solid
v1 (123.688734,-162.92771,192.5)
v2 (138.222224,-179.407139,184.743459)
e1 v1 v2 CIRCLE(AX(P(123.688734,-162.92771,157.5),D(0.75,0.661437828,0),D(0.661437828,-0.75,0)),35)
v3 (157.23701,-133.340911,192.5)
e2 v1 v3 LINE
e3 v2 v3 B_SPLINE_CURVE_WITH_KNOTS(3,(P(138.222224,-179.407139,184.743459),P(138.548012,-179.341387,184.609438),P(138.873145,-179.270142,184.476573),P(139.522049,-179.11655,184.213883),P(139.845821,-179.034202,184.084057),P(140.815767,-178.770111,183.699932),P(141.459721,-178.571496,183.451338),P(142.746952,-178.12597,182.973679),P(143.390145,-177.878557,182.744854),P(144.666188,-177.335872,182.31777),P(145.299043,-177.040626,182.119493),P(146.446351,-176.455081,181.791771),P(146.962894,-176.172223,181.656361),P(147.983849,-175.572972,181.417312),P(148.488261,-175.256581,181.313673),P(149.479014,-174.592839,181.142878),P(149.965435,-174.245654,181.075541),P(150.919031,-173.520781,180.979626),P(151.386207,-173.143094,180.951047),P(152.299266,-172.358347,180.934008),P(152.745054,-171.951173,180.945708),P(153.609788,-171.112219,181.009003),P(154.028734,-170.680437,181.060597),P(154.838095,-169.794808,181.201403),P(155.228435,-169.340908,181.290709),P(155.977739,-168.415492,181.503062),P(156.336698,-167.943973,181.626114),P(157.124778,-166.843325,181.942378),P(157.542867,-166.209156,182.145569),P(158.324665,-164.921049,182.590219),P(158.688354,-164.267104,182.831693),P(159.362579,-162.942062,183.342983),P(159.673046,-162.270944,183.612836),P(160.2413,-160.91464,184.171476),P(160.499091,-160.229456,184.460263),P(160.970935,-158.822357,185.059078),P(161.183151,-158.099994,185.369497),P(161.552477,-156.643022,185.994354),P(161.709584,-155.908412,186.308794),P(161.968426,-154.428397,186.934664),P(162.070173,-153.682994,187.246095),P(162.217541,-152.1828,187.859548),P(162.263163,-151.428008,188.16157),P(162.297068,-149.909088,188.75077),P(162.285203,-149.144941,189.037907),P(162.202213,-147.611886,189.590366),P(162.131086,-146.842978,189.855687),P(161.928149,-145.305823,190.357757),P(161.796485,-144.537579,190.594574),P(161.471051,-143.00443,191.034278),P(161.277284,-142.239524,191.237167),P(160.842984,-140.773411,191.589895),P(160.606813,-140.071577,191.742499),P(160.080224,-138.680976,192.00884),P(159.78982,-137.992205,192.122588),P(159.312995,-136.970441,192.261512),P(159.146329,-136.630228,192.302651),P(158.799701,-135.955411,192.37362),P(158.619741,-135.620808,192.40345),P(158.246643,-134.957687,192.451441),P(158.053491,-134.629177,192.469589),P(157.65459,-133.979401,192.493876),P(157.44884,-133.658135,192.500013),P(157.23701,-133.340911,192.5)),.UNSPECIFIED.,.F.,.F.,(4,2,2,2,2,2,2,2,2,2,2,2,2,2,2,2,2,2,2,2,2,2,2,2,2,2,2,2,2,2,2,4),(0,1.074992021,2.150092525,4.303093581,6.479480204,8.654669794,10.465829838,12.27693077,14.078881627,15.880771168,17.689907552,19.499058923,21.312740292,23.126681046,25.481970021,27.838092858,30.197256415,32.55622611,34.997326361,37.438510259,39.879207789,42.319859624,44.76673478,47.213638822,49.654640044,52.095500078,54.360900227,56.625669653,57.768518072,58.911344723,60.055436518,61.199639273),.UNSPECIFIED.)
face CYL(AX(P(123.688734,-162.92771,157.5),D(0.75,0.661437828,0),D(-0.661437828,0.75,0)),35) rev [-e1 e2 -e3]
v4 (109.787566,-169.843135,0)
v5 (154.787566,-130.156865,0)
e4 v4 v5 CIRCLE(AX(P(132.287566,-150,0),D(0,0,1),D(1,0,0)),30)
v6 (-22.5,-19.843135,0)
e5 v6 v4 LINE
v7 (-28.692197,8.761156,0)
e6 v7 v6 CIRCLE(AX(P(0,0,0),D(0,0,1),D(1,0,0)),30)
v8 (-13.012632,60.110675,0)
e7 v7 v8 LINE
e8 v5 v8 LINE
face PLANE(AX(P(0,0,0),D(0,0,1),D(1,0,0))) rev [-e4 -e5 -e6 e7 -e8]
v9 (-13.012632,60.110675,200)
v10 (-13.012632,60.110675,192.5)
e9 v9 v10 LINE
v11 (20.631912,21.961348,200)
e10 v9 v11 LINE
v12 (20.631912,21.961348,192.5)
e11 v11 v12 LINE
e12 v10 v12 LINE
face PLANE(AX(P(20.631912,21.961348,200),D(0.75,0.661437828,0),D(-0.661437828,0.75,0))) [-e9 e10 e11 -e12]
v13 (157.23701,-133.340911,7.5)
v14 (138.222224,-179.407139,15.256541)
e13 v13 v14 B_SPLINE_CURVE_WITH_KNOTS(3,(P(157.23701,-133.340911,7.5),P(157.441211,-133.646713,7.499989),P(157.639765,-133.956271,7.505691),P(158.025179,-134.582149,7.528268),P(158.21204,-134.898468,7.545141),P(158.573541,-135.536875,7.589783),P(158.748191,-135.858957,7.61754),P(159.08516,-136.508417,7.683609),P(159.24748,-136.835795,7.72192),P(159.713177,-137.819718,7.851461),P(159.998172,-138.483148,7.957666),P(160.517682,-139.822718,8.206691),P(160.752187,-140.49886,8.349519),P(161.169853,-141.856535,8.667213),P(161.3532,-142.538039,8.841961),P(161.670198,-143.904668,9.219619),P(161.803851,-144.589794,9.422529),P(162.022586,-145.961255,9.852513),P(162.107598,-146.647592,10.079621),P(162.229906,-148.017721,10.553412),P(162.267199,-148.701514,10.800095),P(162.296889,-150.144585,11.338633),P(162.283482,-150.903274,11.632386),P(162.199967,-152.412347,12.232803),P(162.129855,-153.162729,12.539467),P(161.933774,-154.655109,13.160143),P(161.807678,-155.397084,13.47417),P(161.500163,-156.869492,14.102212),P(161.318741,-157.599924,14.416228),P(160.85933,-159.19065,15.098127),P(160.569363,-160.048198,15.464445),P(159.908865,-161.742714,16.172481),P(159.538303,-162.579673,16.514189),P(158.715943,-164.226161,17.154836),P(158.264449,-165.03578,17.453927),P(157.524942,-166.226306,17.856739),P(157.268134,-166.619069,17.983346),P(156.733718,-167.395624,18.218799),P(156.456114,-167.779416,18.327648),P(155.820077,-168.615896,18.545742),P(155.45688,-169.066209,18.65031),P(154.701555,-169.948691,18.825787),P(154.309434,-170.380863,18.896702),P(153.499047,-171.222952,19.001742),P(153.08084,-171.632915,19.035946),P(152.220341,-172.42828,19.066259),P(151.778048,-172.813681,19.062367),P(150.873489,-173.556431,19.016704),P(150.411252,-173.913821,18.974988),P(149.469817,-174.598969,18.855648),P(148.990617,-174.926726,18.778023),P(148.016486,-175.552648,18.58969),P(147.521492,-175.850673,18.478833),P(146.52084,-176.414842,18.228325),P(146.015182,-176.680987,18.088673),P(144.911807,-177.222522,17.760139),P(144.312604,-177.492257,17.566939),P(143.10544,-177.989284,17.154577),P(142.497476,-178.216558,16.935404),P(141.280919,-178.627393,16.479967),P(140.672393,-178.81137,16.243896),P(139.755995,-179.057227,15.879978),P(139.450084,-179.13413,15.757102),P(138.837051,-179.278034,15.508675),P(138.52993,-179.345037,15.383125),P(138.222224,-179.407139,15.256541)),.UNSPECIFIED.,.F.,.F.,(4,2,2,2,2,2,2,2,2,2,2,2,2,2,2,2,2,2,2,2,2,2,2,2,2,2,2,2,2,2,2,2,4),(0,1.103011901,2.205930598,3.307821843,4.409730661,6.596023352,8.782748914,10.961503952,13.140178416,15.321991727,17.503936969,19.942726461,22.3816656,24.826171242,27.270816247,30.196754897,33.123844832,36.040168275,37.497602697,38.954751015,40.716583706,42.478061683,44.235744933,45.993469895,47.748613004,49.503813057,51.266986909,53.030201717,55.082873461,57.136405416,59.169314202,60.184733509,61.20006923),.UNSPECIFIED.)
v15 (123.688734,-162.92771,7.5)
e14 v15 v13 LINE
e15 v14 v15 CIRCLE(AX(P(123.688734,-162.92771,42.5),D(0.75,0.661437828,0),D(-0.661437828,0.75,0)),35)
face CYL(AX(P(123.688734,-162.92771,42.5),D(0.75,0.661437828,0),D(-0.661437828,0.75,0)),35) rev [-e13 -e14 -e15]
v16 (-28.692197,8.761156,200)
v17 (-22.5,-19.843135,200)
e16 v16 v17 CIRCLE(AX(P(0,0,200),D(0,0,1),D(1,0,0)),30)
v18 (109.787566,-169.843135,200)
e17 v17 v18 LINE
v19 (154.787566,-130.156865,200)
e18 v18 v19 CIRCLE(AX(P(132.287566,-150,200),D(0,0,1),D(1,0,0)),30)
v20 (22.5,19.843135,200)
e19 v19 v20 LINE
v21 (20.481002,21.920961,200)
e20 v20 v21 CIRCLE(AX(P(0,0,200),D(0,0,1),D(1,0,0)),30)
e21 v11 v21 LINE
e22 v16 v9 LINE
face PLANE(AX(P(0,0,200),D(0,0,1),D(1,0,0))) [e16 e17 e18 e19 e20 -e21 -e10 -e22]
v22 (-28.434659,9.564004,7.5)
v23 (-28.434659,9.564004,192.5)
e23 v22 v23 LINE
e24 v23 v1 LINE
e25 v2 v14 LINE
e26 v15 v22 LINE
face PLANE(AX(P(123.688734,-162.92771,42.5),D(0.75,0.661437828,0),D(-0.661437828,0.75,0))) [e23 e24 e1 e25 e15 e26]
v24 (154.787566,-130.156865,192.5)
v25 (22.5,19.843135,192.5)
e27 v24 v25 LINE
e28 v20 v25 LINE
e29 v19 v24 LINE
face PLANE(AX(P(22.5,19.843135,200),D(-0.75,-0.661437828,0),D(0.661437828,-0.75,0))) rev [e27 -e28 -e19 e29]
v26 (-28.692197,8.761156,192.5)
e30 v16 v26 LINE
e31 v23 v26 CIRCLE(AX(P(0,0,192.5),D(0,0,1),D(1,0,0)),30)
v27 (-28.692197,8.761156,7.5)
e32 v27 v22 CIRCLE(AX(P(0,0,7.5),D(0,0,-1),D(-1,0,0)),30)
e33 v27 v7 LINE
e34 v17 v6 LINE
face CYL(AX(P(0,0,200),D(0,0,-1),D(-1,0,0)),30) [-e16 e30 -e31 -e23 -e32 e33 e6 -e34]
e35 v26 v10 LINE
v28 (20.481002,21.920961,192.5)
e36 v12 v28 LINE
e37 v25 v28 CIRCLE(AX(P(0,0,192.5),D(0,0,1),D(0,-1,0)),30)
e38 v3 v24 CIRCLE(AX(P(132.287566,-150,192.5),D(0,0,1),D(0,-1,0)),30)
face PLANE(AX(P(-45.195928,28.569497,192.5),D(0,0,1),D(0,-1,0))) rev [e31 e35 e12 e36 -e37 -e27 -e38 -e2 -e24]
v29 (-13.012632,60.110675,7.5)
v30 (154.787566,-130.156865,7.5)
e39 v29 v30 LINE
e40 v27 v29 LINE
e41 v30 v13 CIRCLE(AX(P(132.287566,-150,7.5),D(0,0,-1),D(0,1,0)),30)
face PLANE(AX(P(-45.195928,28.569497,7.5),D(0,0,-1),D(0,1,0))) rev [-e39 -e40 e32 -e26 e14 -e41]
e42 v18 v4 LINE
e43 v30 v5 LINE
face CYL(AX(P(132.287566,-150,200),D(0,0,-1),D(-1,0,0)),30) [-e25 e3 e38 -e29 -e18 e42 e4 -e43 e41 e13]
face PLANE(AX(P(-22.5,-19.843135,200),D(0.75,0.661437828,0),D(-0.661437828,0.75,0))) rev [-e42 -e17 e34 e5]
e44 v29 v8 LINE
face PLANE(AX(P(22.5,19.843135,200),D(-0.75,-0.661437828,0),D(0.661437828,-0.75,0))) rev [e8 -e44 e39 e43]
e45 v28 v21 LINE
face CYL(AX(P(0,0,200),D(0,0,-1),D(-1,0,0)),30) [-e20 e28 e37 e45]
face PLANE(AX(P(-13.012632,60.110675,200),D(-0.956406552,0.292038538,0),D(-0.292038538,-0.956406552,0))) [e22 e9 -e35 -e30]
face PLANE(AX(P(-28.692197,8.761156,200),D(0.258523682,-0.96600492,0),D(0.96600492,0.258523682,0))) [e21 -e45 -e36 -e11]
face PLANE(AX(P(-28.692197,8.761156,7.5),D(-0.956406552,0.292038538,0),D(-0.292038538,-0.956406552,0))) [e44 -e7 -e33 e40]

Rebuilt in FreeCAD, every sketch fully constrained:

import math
import FreeCAD as App
import Part
import Sketcher
from FreeCAD import Vector
Q = App.Units.Quantity

doc = App.newDocument("Part")
params = doc.addObject("Spreadsheet::Sheet", "Params")
for row, (alias, value) in enumerate([
    ("sketch1_radius", "30 mm"),
    ("sketch1_length", "200 mm"),
    ("pad1_length", "200 mm"),
    ("sketch2_radius", "35 mm"),
    ("sketch2_width", "115 mm"),
    ("pocket1_length", "45 mm"),
    ("sketch3_radius", "30 mm"),
    ("pad2_length", "7.5 mm"),
    ("pad3_length", "7.5 mm"),
], start=1):
    params.set(f"A{row}", alias)
    params.set(f"B{row}", "=" + value)
    params.setAlias(f"B{row}", alias)

body = doc.addObject("PartDesign::Body", "Body")

sketch1 = body.newObject("Sketcher::SketchObject", "Sketch")
sketch1.AttachmentSupport = (doc.getObject("XY_Plane"), [""])
sketch1.MapMode = "FlatFace"
sketch1.addGeometry(Part.LineSegment(Vector(154.787566, -130.156865, 0), Vector(22.5, 19.843135, 0)), False)
sketch1.addGeometry(Part.ArcOfCircle(Part.Circle(Vector(0, 0, 0), Vector(0, 0, 1), 30), math.radians(41.409622), math.radians(221.409622)), False)
sketch1.addGeometry(Part.LineSegment(Vector(-22.5, -19.843135, 0), Vector(109.787566, -169.843135, 0)), False)
sketch1.addGeometry(Part.ArcOfCircle(Part.Circle(Vector(132.287566, -150, 0), Vector(0, 0, 1), 30), math.radians(-138.590378), math.radians(41.409622)), False)
sketch1.addConstraint(Sketcher.Constraint("Tangent", 0, 2, 1, 1))
sketch1.addConstraint(Sketcher.Constraint("Tangent", 1, 2, 2, 1))
sketch1.addConstraint(Sketcher.Constraint("Tangent", 2, 2, 3, 1))
sketch1.addConstraint(Sketcher.Constraint("Tangent", 3, 2, 0, 1))
sketch1.addConstraint(Sketcher.Constraint("Coincident", 1, 3, -1, 1))
sketch1.addConstraint(Sketcher.Constraint("Equal", 1, 3))
sketch1.addConstraint(Sketcher.Constraint("Radius", 1, Q("30 mm")))
sketch1.addConstraint(Sketcher.Constraint("Distance", 0, Q("200 mm")))
sketch1.addConstraint(Sketcher.Constraint("DistanceY", 3, 3, -1, 1, Q("150 mm")))
sketch1.setExpression("Constraints[6]", "Params.sketch1_radius")
sketch1.setExpression("Constraints[7]", "Params.sketch1_length")
pad1 = body.newObject("PartDesign::Pad", "Pad")
pad1.Profile = sketch1
pad1.setExpression("Length", "Params.pad1_length")

sketch2 = body.newObject("Sketcher::SketchObject", "Sketch001")
sketch2.Placement = App.Placement(Vector(22.5, 19.843135, 0), App.Rotation(Vector(0, 0, -1), Vector(-0.661437828, 0.75, 0), Vector(0.75, 0.661437828, 0), "ZXY"))
sketch2.addGeometry(Part.LineSegment(Vector(-192.5, 51.32142, 0), Vector(-192.5, -204.00819, 0)), False)
sketch2.addGeometry(Part.ArcOfCircle(Part.Circle(Vector(-157.5, -204.00819, 0), Vector(0, 0, 1), 35), math.radians(180), math.radians(270)), False)
sketch2.addGeometry(Part.LineSegment(Vector(-157.5, -239.00819, 0), Vector(-42.5, -239.00819, 0)), False)
sketch2.addGeometry(Part.ArcOfCircle(Part.Circle(Vector(-42.5, -204.00819, 0), Vector(0, 0, 1), 35), math.radians(-90), math.radians(0)), False)
sketch2.addGeometry(Part.LineSegment(Vector(-7.5, -204.00819, 0), Vector(-7.5, 51.32142, 0)), False)
sketch2.addGeometry(Part.LineSegment(Vector(-7.5, 51.32142, 0), Vector(-192.5, 51.32142, 0)), False)
sketch2.addConstraint(Sketcher.Constraint("Tangent", 0, 2, 1, 1))
sketch2.addConstraint(Sketcher.Constraint("Tangent", 1, 2, 2, 1))
sketch2.addConstraint(Sketcher.Constraint("Tangent", 2, 2, 3, 1))
sketch2.addConstraint(Sketcher.Constraint("Tangent", 3, 2, 4, 1))
sketch2.addConstraint(Sketcher.Constraint("Coincident", 4, 2, 5, 1))
sketch2.addConstraint(Sketcher.Constraint("Coincident", 5, 2, 0, 1))
sketch2.addConstraint(Sketcher.Constraint("Vertical", 0))
sketch2.addConstraint(Sketcher.Constraint("Horizontal", 2))
sketch2.addConstraint(Sketcher.Constraint("Vertical", 4))
sketch2.addConstraint(Sketcher.Constraint("Horizontal", 5))
sketch2.addConstraint(Sketcher.Constraint("Equal", 1, 3))
sketch2.addConstraint(Sketcher.Constraint("Radius", 1, Q("35 mm")))
sketch2.addConstraint(Sketcher.Constraint("DistanceX", 2, 1, 2, 2, Q("115 mm")))
sketch2.addConstraint(Sketcher.Constraint("DistanceX", 1, 3, -1, 1, Q("157.5 mm")))
sketch2.addConstraint(Sketcher.Constraint("DistanceY", 0, 2, 0, 1, Q("255.329609 mm")))
sketch2.addConstraint(Sketcher.Constraint("DistanceY", 1, 3, -1, 1, Q("204.00819 mm")))
sketch2.setExpression("Constraints[11]", "Params.sketch2_radius")
sketch2.setExpression("Constraints[12]", "Params.sketch2_width")
pocket1 = body.newObject("PartDesign::Pocket", "Pocket")
pocket1.Profile = sketch2
pocket1.setExpression("Length", "Params.pocket1_length")

sketch3 = body.newObject("Sketcher::SketchObject", "Sketch002")
sketch3.AttachmentSupport = (doc.getObject("XY_Plane"), [""])
sketch3.MapMode = "FlatFace"
sketch3.addGeometry(Part.ArcOfCircle(Part.Circle(Vector(0, 0, 0), Vector(0, 0, 1), 30), math.radians(41.409622), math.radians(163.01996)), False)
sketch3.addGeometry(Part.LineSegment(Vector(-28.692197, 8.761156, 0), Vector(-13.012632, 60.110675, 0)), False)
sketch3.addGeometry(Part.LineSegment(Vector(-13.012632, 60.110675, 0), Vector(22.5, 19.843135, 0)), False)
sketch3.addConstraint(Sketcher.Constraint("Tangent", 0, 2, 1, 1))
sketch3.addConstraint(Sketcher.Constraint("Coincident", 1, 2, 2, 1))
sketch3.addConstraint(Sketcher.Constraint("Tangent", 2, 2, 0, 1))
sketch3.addConstraint(Sketcher.Constraint("Coincident", 0, 3, -1, 1))
sketch3.addConstraint(Sketcher.Constraint("Radius", 0, Q("30 mm")))
sketch3.addConstraint(Sketcher.Constraint("DistanceX", -1, 1, 2, 2, Q("22.5 mm")))
sketch3.addConstraint(Sketcher.Constraint("DistanceY", 0, 2, 1, 2, Q("51.349518 mm")))
sketch3.setExpression("Constraints[4]", "Params.sketch3_radius")
pad2 = body.newObject("PartDesign::Pad", "Pad001")
pad2.Profile = sketch3
pad2.setExpression("Length", "Params.pad2_length")

sketch4 = body.newObject("Sketcher::SketchObject", "Sketch003")
sketch4.AttachmentSupport = (doc.getObject("XY_Plane"), [""])
sketch4.MapMode = "FlatFace"
sketch4.AttachmentOffset = App.Placement(Vector(0, 0, 192.5), App.Rotation())
sketch4.addGeometry(Part.LineSegment(Vector(-13.012632, 60.110675, 0), Vector(20.631912, 21.961348, 0)), False)
sketch4.addGeometry(Part.LineSegment(Vector(20.631912, 21.961348, 0), Vector(-28.692197, 8.761156, 0)), False)
sketch4.addGeometry(Part.LineSegment(Vector(-28.692197, 8.761156, 0), Vector(-13.012632, 60.110675, 0)), False)
sketch4.addConstraint(Sketcher.Constraint("Coincident", 0, 2, 1, 1))
sketch4.addConstraint(Sketcher.Constraint("Coincident", 1, 2, 2, 1))
sketch4.addConstraint(Sketcher.Constraint("Coincident", 2, 2, 0, 1))
sketch4.addConstraint(Sketcher.Constraint("Distance", 0, Q("50.865769 mm")))
sketch4.addConstraint(Sketcher.Constraint("DistanceX", -1, 1, 0, 2, Q("20.631912 mm")))
sketch4.addConstraint(Sketcher.Constraint("DistanceX", 1, 2, 0, 2, Q("49.324108 mm")))
sketch4.addConstraint(Sketcher.Constraint("DistanceY", 1, 2, 0, 2, Q("13.200192 mm")))
sketch4.addConstraint(Sketcher.Constraint("DistanceY", 1, 2, 2, 2, Q("51.349518 mm")))
sketch4.addConstraint(Sketcher.Constraint("DistanceY", -1, 1, 0, 2, Q("21.961348 mm")))
pad3 = body.newObject("PartDesign::Pad", "Pad002")
pad3.Profile = sketch4
pad3.setExpression("Length", "Params.pad3_length")

doc.recompute()
